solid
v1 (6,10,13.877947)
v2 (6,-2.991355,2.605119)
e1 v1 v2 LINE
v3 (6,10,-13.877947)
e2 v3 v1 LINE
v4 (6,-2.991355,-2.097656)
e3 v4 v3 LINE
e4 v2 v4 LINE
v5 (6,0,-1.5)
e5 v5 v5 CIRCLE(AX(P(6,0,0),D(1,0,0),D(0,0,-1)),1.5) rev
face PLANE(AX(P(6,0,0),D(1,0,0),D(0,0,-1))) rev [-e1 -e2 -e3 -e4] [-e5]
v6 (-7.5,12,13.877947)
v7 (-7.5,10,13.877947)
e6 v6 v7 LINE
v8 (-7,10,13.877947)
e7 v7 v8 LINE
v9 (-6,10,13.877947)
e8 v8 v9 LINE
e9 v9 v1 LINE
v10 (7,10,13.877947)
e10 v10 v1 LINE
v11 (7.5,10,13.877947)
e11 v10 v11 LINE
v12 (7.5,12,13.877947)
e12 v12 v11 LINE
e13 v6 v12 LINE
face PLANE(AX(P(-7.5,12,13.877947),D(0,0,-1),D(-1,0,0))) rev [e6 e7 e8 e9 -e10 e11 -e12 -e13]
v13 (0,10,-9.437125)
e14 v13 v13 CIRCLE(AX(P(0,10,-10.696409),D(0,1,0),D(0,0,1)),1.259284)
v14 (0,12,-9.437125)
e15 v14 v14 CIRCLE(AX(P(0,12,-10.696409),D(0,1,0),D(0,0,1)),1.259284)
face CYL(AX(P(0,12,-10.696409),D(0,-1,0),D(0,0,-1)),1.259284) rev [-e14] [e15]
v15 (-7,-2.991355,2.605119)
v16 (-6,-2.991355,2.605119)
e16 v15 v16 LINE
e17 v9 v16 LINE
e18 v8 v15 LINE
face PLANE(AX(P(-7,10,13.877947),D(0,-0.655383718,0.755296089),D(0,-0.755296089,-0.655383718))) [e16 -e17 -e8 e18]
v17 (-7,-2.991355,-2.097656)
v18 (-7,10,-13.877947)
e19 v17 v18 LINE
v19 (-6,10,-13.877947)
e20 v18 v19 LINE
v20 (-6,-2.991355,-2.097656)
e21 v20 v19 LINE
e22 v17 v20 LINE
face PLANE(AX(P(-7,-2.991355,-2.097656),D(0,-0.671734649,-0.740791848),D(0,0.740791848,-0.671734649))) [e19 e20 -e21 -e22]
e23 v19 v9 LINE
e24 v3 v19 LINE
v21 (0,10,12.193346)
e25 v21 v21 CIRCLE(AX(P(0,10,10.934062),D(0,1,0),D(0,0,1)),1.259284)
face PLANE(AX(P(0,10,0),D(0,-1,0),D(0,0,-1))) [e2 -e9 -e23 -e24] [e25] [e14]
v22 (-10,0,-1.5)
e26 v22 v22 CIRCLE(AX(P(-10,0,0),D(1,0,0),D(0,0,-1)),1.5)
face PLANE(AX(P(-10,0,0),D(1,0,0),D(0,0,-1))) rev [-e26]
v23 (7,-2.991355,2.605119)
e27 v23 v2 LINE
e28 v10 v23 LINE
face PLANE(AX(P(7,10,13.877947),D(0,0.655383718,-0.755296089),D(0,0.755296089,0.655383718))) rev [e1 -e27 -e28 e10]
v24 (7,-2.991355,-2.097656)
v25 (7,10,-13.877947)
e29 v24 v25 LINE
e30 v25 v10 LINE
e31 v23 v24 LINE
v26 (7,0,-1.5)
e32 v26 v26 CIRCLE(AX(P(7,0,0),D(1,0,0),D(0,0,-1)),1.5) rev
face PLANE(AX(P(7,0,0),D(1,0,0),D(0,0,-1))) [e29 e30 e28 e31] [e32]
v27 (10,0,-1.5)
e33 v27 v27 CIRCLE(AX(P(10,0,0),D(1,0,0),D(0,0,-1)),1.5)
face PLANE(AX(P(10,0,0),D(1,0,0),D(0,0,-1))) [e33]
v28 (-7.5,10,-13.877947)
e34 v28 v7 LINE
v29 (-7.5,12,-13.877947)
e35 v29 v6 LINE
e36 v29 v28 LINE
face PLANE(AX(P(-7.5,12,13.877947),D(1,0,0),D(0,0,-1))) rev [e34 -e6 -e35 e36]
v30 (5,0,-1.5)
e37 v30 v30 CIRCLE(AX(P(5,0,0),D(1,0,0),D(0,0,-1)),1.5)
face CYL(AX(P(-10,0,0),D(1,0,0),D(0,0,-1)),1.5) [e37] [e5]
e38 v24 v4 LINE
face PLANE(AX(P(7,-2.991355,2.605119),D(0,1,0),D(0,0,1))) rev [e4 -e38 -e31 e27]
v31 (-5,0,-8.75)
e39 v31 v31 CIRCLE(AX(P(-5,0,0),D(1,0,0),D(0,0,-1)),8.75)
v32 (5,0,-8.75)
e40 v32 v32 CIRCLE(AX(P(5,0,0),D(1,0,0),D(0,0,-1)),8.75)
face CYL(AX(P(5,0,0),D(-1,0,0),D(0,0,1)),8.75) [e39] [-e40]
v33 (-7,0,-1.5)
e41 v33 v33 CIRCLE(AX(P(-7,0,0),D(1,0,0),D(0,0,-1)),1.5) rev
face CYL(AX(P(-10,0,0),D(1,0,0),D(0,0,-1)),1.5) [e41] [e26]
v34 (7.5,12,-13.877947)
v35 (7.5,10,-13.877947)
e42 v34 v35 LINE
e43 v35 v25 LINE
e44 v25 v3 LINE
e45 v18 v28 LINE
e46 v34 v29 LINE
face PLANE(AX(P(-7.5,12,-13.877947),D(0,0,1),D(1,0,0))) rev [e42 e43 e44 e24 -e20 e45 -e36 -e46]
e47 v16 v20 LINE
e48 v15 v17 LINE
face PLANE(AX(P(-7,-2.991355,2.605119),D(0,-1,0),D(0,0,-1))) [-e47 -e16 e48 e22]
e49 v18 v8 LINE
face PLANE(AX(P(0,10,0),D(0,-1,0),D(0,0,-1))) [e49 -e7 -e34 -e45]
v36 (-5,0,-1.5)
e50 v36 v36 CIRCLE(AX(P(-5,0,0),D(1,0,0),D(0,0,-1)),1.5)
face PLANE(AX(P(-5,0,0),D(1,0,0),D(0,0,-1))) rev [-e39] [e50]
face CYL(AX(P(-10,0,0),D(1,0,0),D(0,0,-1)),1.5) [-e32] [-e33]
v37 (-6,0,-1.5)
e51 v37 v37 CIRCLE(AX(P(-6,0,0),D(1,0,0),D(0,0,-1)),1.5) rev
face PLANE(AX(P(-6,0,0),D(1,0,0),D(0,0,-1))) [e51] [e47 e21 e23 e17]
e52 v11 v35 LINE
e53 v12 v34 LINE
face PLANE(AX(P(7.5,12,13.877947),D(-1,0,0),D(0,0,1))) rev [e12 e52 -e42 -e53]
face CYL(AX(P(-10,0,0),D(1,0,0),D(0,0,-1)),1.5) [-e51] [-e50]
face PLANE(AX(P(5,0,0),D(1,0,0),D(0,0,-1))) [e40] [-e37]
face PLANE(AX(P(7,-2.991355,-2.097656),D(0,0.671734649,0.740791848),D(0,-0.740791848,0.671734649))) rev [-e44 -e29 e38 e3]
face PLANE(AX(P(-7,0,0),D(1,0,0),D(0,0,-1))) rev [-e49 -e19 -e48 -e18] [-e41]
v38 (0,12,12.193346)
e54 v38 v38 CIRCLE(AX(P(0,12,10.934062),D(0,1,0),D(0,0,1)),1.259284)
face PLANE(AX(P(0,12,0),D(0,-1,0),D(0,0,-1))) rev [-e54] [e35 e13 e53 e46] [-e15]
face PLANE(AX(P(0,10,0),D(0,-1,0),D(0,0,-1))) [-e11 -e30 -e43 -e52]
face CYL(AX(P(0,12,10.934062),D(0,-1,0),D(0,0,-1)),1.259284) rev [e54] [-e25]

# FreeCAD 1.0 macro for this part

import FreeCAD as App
import Part
import Sketcher

V = App.Vector
Q = App.Units.Quantity


def add_polygon(sketch, points):
    """Adds a closed chain of lines whose ends are joined by coincident constraints."""
    first, n = sketch.GeometryCount, len(points)
    for a, b in zip(points, points[1:] + points[:1]):
        sketch.addGeometry(Part.LineSegment(App.Vector(*a, 0), App.Vector(*b, 0)), False)
    for i in range(n):
        sketch.addConstraint(Sketcher.Constraint("Coincident", first + i, 2, first + (i + 1) % n, 1))

doc = App.newDocument("Part")
body = doc.addObject("PartDesign::Body", "Body")

# Sketch on YZ plane
sketch1 = body.newObject("Sketcher::SketchObject", "Sketch")
sketch1.AttachmentSupport = (doc.getObject("YZ_Plane"), [""])
sketch1.MapMode = "FlatFace"
sketch1.addGeometry(Part.Circle(V(0, 0, 0), V(0, 0, 1), 8.8), False)
sketch1.addGeometry(Part.Circle(V(0, 0, 0), V(0, 0, 1), 1.5), False)
sketch1.addConstraint(Sketcher.Constraint("Coincident", 0, 3, -1, 1))
sketch1.addConstraint(Sketcher.Constraint("Coincident", 1, 3, -1, 1))
sketch1.addConstraint(Sketcher.Constraint("Diameter", 1, Q("3 mm")))
sketch1.addConstraint(Sketcher.Constraint("Diameter", 0, Q("17.5 mm")))
pad1 = body.newObject("PartDesign::Pad", "Pad")
pad1.Profile = sketch1
pad1.Length = 10
pad1.Midplane = True

# Sketch on YZ plane
sketch2 = body.newObject("Sketcher::SketchObject", "Sketch001")
sketch2.AttachmentSupport = (doc.getObject("YZ_Plane"), [""])
sketch2.MapMode = "FlatFace"
sketch2.addGeometry(Part.Circle(V(0, 0, 0), V(0, 0, 1), 1.5), False)
sketch2.addConstraint(Sketcher.Constraint("Coincident", 0, 3, -1, 1))
sketch2.addConstraint(Sketcher.Constraint("Diameter", 0, Q("3 mm")))
pad2 = body.newObject("PartDesign::Pad", "Pad001")
pad2.Profile = sketch2
pad2.Length = 20
pad2.Midplane = True
body2 = doc.addObject("PartDesign::Body", "Body001")

# Sketch on XZ plane
sketch3 = body2.newObject("Sketcher::SketchObject", "Sketch002")
sketch3.AttachmentSupport = (doc.getObject("XZ_Plane001"), [""])
sketch3.MapMode = "FlatFace"
sketch3.AttachmentOffset = App.Placement(V(0, 0, -10), App.Rotation())
add_polygon(sketch3, [(-7.5, -13.9), (-7.5, 13.9), (7.5, 13.9), (7.5, -13.9)])  # lines 0-3
sketch3.addGeometry(Part.Circle(V(0, 10.9, 0), V(0, 0, 1), 1.3), False)  # 4
sketch3.addGeometry(Part.Circle(V(0, -10.7, 0), V(0, 0, 1), 1.3), False)  # 5
sketch3.addConstraint(Sketcher.Constraint("Vertical", 0))
sketch3.addConstraint(Sketcher.Constraint("Horizontal", 1))
sketch3.addConstraint(Sketcher.Constraint("Vertical", 2))
sketch3.addConstraint(Sketcher.Constraint("Horizontal", 3))
sketch3.addConstraint(Sketcher.Constraint("Equal", 4, 5))
sketch3.addConstraint(Sketcher.Constraint("Symmetric", 0, 2, 2, 2, -1, 1))
sketch3.addConstraint(Sketcher.Constraint("PointOnObject", 4, 3, -2))
sketch3.addConstraint(Sketcher.Constraint("PointOnObject", 5, 3, -2))
sketch3.addConstraint(Sketcher.Constraint("DistanceX", 1, 1, 1, 2, Q("15 mm")))
sketch3.addConstraint(Sketcher.Constraint("Diameter", 4, Q("2.518568 mm")))
sketch3.addConstraint(Sketcher.Constraint("DistanceY", 0, 1, 0, 2, Q("27.755894 mm")))
sketch3.addConstraint(Sketcher.Constraint("DistanceY", -1, 1, 4, 3, Q("10.934062 mm")))
sketch3.addConstraint(Sketcher.Constraint("DistanceY", 5, 3, -1, 1, Q("10.696409 mm")))
pad3 = body2.newObject("PartDesign::Pad", "Pad002")
pad3.Profile = sketch3
pad3.Length = 2
pad3.Reversed = True
body.AllowCompound = True
doc.recompute()

boolean = body.newObject("PartDesign::Boolean", "Boolean")
boolean.Type = "Fuse"
boolean.addObjects([body2])

# Sketch on YZ plane
sketch4 = body.newObject("Sketcher::SketchObject", "Sketch003")
sketch4.AttachmentSupport = (doc.getObject("YZ_Plane"), [""])
sketch4.MapMode = "FlatFace"
sketch4.AttachmentOffset = App.Placement(V(0, 0, 6), App.Rotation())
add_polygon(sketch4, [(10, 13.9), (-3, 2.6), (-3, -2.1), (10, -13.9)])  # lines 0-3
sketch4.addConstraint(Sketcher.Constraint("Vertical", 1))
sketch4.addConstraint(Sketcher.Constraint("Vertical", 3))
sketch4.addConstraint(Sketcher.Constraint("DistanceX", -1, 1, 2, 2, Q("10 mm")))
sketch4.addConstraint(Sketcher.Constraint("Distance", 2, Q("17.53712 mm")))
sketch4.addConstraint(Sketcher.Constraint("DistanceY", 1, 2, 1, 1, Q("4.702775 mm")))
sketch4.addConstraint(Sketcher.Constraint("DistanceY", 3, 1, 3, 2, Q("27.755894 mm")))
sketch4.addConstraint(Sketcher.Constraint("DistanceY", -1, 1, 0, 2, Q("2.605119 mm")))
sketch4.addConstraint(Sketcher.Constraint("DistanceY", 2, 2, 1, 2, Q("11.780291 mm")))
pad4 = body.newObject("PartDesign::Pad", "Pad003")
pad4.Profile = sketch4
pad4.Length = 1

# Sketch on YZ plane
sketch5 = body.newObject("Sketcher::SketchObject", "Sketch004")
sketch5.AttachmentSupport = (doc.getObject("YZ_Plane"), [""])
sketch5.MapMode = "FlatFace"
sketch5.AttachmentOffset = App.Placement(V(0, 0, -6), App.Rotation())
add_polygon(sketch5, [(10, 13.9), (-3, 2.6), (-3, -2.1), (10, -13.9)])  # lines 0-3
sketch5.addConstraint(Sketcher.Constraint("Vertical", 1))
sketch5.addConstraint(Sketcher.Constraint("Vertical", 3))
sketch5.addConstraint(Sketcher.Constraint("DistanceX", -1, 1, 2, 2, Q("10 mm")))
sketch5.addConstraint(Sketcher.Constraint("Distance", 2, Q("17.53712 mm")))
sketch5.addConstraint(Sketcher.Constraint("DistanceY", 1, 2, 1, 1, Q("4.702775 mm")))
sketch5.addConstraint(Sketcher.Constraint("DistanceY", 3, 1, 3, 2, Q("27.755894 mm")))
sketch5.addConstraint(Sketcher.Constraint("DistanceY", -1, 1, 0, 2, Q("2.605119 mm")))
sketch5.addConstraint(Sketcher.Constraint("DistanceY", 2, 2, 1, 2, Q("11.780291 mm")))
pad5 = body.newObject("PartDesign::Pad", "Pad004")
pad5.Profile = sketch5
pad5.Length = 1
pad5.Reversed = True

doc.recompute()
